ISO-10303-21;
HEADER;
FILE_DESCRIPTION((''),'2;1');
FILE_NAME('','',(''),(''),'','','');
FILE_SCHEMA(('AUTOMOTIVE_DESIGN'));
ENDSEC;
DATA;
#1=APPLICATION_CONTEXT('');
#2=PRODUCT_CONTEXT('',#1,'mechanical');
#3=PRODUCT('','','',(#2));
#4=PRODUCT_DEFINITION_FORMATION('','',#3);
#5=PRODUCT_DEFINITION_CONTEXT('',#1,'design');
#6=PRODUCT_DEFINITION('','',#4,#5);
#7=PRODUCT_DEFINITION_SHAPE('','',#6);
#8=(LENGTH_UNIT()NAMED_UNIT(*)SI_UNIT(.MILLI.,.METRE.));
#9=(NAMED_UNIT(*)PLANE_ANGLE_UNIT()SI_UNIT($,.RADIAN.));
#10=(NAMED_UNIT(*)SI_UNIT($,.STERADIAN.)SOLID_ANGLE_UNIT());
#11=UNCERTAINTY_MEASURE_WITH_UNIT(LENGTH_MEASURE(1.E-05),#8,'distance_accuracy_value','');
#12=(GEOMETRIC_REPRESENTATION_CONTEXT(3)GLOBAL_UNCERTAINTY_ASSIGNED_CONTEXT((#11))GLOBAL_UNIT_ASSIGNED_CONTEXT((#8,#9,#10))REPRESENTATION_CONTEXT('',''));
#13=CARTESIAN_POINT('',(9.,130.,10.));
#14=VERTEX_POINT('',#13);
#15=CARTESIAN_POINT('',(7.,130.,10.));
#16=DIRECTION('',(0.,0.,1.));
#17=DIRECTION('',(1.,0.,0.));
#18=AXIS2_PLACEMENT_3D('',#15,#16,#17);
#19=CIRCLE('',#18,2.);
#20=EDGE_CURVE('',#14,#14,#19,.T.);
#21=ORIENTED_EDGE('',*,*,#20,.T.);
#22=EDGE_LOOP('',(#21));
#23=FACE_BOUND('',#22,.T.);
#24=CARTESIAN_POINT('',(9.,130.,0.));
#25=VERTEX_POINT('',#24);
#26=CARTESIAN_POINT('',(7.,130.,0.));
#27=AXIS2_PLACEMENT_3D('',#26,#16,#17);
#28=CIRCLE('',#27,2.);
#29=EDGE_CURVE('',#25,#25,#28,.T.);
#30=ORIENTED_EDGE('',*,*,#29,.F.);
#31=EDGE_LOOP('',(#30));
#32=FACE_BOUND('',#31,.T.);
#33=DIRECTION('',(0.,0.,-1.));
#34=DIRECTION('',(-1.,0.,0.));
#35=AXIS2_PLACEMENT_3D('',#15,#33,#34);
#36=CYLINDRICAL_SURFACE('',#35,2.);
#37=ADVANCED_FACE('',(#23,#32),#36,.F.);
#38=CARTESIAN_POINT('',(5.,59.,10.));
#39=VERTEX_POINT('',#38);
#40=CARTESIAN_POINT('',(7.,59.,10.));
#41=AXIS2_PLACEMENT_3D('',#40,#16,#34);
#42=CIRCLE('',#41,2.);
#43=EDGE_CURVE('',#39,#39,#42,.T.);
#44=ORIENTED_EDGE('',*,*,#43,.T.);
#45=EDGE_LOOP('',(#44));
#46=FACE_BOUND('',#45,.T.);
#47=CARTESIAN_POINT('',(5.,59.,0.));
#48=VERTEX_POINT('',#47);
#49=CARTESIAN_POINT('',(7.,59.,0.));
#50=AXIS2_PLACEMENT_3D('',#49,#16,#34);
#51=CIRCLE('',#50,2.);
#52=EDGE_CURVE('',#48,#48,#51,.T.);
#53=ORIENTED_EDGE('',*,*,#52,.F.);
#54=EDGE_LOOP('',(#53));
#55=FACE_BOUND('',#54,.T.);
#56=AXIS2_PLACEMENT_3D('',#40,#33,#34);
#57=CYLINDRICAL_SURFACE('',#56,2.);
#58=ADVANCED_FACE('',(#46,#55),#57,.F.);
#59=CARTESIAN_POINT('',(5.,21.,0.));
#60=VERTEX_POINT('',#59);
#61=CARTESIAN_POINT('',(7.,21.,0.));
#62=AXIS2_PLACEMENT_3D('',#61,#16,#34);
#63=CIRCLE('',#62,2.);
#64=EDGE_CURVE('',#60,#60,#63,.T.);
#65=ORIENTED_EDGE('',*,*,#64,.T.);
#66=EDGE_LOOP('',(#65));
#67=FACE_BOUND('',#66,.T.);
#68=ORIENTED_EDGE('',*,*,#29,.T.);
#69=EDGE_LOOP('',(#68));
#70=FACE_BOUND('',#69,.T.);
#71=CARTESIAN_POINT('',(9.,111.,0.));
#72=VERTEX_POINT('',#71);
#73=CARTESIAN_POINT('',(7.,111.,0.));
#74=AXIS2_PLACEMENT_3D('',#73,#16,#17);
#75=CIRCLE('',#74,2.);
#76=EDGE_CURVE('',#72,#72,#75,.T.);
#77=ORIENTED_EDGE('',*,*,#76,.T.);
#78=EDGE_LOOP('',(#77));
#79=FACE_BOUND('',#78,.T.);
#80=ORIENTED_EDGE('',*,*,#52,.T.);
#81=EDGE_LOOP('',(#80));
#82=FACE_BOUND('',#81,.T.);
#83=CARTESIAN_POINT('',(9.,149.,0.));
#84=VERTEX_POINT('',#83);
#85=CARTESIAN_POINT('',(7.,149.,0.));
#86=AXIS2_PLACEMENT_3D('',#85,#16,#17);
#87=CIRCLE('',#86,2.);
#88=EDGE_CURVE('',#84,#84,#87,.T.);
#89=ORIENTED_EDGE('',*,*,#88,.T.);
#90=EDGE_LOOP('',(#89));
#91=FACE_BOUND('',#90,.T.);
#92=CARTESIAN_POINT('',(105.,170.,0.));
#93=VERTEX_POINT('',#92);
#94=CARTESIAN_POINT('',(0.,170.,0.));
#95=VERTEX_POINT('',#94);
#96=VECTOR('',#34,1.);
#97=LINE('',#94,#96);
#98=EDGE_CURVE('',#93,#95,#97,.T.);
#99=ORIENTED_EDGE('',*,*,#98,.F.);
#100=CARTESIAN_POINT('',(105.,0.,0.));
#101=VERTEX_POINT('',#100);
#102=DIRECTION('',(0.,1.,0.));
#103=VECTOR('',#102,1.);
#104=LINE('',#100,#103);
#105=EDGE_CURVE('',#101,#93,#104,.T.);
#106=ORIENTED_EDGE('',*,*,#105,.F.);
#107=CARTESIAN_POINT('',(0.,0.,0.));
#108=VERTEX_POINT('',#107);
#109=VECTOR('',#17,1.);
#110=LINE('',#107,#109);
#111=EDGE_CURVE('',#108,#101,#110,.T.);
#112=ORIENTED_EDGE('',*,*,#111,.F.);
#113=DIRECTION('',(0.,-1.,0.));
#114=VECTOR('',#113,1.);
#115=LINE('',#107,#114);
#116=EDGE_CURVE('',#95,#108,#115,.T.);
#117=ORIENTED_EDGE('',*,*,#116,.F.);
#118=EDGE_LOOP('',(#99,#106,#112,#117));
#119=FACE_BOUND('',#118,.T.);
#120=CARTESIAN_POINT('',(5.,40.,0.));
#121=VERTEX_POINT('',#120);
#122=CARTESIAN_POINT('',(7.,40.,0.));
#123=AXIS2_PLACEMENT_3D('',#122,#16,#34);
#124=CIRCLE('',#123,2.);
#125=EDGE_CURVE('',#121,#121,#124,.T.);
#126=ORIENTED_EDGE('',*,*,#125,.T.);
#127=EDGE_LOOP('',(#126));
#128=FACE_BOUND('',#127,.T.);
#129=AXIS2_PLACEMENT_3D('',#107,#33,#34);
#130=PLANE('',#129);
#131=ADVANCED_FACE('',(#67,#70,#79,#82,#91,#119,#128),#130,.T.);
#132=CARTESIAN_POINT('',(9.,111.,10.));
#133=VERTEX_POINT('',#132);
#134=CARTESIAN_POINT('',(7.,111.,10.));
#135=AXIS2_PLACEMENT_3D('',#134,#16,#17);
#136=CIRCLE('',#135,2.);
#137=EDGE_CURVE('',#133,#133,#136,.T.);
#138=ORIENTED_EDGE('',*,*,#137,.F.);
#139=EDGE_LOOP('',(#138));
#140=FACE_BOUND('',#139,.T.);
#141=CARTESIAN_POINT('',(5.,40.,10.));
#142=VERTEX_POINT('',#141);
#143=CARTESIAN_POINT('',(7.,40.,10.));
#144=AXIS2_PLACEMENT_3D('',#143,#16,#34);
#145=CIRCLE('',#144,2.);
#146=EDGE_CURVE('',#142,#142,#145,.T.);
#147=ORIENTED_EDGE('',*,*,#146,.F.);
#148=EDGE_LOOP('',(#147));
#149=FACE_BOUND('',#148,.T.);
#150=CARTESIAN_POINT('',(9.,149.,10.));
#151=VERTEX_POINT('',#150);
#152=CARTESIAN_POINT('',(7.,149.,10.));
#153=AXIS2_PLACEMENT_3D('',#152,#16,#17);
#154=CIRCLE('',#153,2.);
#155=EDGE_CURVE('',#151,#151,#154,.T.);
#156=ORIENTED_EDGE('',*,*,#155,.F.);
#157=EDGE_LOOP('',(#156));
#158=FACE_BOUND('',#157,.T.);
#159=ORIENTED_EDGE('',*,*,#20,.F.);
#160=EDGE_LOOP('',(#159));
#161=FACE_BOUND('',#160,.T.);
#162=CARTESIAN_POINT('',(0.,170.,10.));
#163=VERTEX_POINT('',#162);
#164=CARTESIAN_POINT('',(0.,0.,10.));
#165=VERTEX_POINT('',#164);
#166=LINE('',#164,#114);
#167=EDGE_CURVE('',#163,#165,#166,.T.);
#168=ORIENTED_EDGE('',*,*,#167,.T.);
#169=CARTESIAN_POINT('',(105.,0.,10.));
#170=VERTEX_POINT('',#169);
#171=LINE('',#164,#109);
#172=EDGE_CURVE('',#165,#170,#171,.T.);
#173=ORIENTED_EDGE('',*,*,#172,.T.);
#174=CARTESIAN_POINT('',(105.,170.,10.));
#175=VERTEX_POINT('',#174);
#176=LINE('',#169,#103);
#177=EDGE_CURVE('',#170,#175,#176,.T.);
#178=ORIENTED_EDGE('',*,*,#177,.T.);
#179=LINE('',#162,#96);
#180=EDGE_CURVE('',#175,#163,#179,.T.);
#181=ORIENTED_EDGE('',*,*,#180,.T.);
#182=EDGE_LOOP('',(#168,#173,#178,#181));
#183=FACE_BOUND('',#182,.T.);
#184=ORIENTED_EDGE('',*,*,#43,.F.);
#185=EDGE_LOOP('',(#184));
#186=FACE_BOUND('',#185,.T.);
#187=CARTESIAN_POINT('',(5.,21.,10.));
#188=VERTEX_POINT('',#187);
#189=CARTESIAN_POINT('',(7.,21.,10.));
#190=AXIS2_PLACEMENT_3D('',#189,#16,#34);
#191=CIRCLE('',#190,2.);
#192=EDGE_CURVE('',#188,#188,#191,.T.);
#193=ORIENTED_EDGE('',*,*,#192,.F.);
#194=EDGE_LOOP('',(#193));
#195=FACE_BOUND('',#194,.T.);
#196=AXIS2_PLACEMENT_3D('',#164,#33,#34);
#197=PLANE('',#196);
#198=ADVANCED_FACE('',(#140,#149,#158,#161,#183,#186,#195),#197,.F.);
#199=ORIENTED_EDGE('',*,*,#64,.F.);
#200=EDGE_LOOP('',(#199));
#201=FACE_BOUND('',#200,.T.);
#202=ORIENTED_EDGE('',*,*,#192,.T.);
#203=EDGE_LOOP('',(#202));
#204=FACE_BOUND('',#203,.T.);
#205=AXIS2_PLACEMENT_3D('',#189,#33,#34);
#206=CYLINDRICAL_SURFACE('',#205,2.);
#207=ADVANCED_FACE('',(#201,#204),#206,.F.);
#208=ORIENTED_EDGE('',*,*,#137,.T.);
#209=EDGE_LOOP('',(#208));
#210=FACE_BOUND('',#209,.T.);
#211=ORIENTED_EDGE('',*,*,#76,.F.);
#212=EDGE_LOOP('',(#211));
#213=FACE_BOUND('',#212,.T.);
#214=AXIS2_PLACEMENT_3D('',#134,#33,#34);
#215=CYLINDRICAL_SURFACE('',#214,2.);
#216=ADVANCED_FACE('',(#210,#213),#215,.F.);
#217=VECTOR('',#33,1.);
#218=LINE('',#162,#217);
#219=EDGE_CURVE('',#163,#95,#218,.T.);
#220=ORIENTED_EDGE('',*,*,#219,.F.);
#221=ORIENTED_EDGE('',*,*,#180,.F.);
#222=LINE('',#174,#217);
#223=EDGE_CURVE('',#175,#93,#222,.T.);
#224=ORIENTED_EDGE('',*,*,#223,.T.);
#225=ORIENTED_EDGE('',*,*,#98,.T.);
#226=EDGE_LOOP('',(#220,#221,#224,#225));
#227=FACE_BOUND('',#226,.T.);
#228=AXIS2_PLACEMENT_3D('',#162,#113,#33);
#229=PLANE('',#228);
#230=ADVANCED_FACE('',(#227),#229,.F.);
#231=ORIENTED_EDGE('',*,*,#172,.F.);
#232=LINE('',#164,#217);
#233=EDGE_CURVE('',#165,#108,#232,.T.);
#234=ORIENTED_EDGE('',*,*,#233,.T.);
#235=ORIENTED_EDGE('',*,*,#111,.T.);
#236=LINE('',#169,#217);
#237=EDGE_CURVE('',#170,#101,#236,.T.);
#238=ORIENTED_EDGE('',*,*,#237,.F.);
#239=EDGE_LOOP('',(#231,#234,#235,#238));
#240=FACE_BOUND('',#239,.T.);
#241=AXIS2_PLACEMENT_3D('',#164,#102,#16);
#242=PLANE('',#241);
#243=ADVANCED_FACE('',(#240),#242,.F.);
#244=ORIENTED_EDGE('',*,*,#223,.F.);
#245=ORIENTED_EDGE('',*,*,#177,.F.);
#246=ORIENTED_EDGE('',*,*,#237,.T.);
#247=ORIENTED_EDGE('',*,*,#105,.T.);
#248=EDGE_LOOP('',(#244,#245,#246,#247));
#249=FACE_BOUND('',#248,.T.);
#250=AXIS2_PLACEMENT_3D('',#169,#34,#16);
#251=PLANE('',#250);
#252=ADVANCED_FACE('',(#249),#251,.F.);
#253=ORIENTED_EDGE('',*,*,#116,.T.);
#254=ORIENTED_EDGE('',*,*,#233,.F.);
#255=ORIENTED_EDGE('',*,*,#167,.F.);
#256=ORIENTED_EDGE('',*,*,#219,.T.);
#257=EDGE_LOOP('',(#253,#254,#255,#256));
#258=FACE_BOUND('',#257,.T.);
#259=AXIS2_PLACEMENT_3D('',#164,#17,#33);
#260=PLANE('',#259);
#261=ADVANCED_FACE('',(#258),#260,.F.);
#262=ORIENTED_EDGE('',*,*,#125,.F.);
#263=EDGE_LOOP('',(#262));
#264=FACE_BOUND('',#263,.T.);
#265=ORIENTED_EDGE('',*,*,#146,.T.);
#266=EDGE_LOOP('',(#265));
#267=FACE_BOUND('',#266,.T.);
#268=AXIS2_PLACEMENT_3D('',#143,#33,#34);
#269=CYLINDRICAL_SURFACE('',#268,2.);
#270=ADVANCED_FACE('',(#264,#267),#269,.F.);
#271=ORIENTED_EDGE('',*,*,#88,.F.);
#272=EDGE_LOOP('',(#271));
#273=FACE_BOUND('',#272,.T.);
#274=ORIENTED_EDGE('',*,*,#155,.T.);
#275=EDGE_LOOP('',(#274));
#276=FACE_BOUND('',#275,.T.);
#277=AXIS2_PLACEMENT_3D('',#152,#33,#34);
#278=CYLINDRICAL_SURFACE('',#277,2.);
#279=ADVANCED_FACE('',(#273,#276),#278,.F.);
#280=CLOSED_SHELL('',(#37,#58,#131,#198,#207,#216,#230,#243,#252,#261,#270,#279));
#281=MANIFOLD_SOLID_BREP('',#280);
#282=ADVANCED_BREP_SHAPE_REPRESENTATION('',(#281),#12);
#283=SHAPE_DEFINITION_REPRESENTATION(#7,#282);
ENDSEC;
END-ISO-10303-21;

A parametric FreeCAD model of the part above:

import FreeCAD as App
import Part
import Sketcher
Q = App.Units.Quantity


def add_polygon(sketch, points):
    """Adds a closed chain of lines whose ends are joined by coincident constraints."""
    first, n = sketch.GeometryCount, len(points)
    for a, b in zip(points, points[1:] + points[:1]):
        sketch.addGeometry(Part.LineSegment(App.Vector(*a, 0), App.Vector(*b, 0)), False)
    for i in range(n):
        sketch.addConstraint(Sketcher.Constraint("Coincident", first + i, 2, first + (i + 1) % n, 1))

doc = App.newDocument("Part")
body = doc.addObject("PartDesign::Body", "Body")

sketch1 = body.newObject("Sketcher::SketchObject", "Sketch")
sketch1.AttachmentSupport = (doc.getObject("XY_Plane"), [""])
sketch1.MapMode = "FlatFace"
add_polygon(sketch1, [(0, 170), (0, 0), (105, 0), (105, 170)])
sketch1.addGeometry(Part.Circle(App.Vector(7, 21, 0), App.Vector(0, 0, 1), 2), False)
sketch1.addGeometry(Part.Circle(App.Vector(7, 40, 0), App.Vector(0, 0, 1), 2), False)
sketch1.addGeometry(Part.Circle(App.Vector(7, 59, 0), App.Vector(0, 0, 1), 2), False)
sketch1.addGeometry(Part.Circle(App.Vector(7, 111, 0), App.Vector(0, 0, 1), 2), False)
sketch1.addGeometry(Part.Circle(App.Vector(7, 130, 0), App.Vector(0, 0, 1), 2), False)
sketch1.addGeometry(Part.Circle(App.Vector(7, 149, 0), App.Vector(0, 0, 1), 2), False)
sketch1.addConstraint([
    Sketcher.Constraint("Vertical", 0),
    Sketcher.Constraint("Horizontal", 1),
    Sketcher.Constraint("Vertical", 2),
    Sketcher.Constraint("Horizontal", 3),
    Sketcher.Constraint("Coincident", 0, 2, -1, 1),
    Sketcher.Constraint("Equal", 4, 5),
    Sketcher.Constraint("Equal", 5, 6),
    Sketcher.Constraint("Equal", 6, 7),
    Sketcher.Constraint("Equal", 7, 8),
    Sketcher.Constraint("Equal", 8, 9),
    Sketcher.Constraint("Vertical", 4, 3, 5, 3),
    Sketcher.Constraint("Vertical", 5, 3, 6, 3),
    Sketcher.Constraint("Vertical", 6, 3, 7, 3),
    Sketcher.Constraint("Vertical", 7, 3, 8, 3),
    Sketcher.Constraint("Vertical", 8, 3, 9, 3),
    Sketcher.Constraint("Diameter", 4, Q("4 mm")),
    Sketcher.Constraint("DistanceX", 1, 1, 1, 2, Q("105 mm")),
    Sketcher.Constraint("DistanceY", 0, 2, 0, 1, Q("170 mm")),
    Sketcher.Constraint("DistanceX", -1, 1, 4, 3, Q("7 mm")),
    Sketcher.Constraint("DistanceY", -1, 1, 4, 3, Q("21 mm")),
    Sketcher.Constraint("DistanceY", -1, 1, 5, 3, Q("40 mm")),
    Sketcher.Constraint("DistanceY", -1, 1, 6, 3, Q("59 mm")),
    Sketcher.Constraint("DistanceY", -1, 1, 7, 3, Q("111 mm")),
    Sketcher.Constraint("DistanceY", -1, 1, 8, 3, Q("130 mm")),
    Sketcher.Constraint("DistanceY", -1, 1, 9, 3, Q("149 mm")),
])
pad1 = body.newObject("PartDesign::Pad", "Pad")
pad1.Profile = sketch1
pad1.Length = 10

doc.recompute()
